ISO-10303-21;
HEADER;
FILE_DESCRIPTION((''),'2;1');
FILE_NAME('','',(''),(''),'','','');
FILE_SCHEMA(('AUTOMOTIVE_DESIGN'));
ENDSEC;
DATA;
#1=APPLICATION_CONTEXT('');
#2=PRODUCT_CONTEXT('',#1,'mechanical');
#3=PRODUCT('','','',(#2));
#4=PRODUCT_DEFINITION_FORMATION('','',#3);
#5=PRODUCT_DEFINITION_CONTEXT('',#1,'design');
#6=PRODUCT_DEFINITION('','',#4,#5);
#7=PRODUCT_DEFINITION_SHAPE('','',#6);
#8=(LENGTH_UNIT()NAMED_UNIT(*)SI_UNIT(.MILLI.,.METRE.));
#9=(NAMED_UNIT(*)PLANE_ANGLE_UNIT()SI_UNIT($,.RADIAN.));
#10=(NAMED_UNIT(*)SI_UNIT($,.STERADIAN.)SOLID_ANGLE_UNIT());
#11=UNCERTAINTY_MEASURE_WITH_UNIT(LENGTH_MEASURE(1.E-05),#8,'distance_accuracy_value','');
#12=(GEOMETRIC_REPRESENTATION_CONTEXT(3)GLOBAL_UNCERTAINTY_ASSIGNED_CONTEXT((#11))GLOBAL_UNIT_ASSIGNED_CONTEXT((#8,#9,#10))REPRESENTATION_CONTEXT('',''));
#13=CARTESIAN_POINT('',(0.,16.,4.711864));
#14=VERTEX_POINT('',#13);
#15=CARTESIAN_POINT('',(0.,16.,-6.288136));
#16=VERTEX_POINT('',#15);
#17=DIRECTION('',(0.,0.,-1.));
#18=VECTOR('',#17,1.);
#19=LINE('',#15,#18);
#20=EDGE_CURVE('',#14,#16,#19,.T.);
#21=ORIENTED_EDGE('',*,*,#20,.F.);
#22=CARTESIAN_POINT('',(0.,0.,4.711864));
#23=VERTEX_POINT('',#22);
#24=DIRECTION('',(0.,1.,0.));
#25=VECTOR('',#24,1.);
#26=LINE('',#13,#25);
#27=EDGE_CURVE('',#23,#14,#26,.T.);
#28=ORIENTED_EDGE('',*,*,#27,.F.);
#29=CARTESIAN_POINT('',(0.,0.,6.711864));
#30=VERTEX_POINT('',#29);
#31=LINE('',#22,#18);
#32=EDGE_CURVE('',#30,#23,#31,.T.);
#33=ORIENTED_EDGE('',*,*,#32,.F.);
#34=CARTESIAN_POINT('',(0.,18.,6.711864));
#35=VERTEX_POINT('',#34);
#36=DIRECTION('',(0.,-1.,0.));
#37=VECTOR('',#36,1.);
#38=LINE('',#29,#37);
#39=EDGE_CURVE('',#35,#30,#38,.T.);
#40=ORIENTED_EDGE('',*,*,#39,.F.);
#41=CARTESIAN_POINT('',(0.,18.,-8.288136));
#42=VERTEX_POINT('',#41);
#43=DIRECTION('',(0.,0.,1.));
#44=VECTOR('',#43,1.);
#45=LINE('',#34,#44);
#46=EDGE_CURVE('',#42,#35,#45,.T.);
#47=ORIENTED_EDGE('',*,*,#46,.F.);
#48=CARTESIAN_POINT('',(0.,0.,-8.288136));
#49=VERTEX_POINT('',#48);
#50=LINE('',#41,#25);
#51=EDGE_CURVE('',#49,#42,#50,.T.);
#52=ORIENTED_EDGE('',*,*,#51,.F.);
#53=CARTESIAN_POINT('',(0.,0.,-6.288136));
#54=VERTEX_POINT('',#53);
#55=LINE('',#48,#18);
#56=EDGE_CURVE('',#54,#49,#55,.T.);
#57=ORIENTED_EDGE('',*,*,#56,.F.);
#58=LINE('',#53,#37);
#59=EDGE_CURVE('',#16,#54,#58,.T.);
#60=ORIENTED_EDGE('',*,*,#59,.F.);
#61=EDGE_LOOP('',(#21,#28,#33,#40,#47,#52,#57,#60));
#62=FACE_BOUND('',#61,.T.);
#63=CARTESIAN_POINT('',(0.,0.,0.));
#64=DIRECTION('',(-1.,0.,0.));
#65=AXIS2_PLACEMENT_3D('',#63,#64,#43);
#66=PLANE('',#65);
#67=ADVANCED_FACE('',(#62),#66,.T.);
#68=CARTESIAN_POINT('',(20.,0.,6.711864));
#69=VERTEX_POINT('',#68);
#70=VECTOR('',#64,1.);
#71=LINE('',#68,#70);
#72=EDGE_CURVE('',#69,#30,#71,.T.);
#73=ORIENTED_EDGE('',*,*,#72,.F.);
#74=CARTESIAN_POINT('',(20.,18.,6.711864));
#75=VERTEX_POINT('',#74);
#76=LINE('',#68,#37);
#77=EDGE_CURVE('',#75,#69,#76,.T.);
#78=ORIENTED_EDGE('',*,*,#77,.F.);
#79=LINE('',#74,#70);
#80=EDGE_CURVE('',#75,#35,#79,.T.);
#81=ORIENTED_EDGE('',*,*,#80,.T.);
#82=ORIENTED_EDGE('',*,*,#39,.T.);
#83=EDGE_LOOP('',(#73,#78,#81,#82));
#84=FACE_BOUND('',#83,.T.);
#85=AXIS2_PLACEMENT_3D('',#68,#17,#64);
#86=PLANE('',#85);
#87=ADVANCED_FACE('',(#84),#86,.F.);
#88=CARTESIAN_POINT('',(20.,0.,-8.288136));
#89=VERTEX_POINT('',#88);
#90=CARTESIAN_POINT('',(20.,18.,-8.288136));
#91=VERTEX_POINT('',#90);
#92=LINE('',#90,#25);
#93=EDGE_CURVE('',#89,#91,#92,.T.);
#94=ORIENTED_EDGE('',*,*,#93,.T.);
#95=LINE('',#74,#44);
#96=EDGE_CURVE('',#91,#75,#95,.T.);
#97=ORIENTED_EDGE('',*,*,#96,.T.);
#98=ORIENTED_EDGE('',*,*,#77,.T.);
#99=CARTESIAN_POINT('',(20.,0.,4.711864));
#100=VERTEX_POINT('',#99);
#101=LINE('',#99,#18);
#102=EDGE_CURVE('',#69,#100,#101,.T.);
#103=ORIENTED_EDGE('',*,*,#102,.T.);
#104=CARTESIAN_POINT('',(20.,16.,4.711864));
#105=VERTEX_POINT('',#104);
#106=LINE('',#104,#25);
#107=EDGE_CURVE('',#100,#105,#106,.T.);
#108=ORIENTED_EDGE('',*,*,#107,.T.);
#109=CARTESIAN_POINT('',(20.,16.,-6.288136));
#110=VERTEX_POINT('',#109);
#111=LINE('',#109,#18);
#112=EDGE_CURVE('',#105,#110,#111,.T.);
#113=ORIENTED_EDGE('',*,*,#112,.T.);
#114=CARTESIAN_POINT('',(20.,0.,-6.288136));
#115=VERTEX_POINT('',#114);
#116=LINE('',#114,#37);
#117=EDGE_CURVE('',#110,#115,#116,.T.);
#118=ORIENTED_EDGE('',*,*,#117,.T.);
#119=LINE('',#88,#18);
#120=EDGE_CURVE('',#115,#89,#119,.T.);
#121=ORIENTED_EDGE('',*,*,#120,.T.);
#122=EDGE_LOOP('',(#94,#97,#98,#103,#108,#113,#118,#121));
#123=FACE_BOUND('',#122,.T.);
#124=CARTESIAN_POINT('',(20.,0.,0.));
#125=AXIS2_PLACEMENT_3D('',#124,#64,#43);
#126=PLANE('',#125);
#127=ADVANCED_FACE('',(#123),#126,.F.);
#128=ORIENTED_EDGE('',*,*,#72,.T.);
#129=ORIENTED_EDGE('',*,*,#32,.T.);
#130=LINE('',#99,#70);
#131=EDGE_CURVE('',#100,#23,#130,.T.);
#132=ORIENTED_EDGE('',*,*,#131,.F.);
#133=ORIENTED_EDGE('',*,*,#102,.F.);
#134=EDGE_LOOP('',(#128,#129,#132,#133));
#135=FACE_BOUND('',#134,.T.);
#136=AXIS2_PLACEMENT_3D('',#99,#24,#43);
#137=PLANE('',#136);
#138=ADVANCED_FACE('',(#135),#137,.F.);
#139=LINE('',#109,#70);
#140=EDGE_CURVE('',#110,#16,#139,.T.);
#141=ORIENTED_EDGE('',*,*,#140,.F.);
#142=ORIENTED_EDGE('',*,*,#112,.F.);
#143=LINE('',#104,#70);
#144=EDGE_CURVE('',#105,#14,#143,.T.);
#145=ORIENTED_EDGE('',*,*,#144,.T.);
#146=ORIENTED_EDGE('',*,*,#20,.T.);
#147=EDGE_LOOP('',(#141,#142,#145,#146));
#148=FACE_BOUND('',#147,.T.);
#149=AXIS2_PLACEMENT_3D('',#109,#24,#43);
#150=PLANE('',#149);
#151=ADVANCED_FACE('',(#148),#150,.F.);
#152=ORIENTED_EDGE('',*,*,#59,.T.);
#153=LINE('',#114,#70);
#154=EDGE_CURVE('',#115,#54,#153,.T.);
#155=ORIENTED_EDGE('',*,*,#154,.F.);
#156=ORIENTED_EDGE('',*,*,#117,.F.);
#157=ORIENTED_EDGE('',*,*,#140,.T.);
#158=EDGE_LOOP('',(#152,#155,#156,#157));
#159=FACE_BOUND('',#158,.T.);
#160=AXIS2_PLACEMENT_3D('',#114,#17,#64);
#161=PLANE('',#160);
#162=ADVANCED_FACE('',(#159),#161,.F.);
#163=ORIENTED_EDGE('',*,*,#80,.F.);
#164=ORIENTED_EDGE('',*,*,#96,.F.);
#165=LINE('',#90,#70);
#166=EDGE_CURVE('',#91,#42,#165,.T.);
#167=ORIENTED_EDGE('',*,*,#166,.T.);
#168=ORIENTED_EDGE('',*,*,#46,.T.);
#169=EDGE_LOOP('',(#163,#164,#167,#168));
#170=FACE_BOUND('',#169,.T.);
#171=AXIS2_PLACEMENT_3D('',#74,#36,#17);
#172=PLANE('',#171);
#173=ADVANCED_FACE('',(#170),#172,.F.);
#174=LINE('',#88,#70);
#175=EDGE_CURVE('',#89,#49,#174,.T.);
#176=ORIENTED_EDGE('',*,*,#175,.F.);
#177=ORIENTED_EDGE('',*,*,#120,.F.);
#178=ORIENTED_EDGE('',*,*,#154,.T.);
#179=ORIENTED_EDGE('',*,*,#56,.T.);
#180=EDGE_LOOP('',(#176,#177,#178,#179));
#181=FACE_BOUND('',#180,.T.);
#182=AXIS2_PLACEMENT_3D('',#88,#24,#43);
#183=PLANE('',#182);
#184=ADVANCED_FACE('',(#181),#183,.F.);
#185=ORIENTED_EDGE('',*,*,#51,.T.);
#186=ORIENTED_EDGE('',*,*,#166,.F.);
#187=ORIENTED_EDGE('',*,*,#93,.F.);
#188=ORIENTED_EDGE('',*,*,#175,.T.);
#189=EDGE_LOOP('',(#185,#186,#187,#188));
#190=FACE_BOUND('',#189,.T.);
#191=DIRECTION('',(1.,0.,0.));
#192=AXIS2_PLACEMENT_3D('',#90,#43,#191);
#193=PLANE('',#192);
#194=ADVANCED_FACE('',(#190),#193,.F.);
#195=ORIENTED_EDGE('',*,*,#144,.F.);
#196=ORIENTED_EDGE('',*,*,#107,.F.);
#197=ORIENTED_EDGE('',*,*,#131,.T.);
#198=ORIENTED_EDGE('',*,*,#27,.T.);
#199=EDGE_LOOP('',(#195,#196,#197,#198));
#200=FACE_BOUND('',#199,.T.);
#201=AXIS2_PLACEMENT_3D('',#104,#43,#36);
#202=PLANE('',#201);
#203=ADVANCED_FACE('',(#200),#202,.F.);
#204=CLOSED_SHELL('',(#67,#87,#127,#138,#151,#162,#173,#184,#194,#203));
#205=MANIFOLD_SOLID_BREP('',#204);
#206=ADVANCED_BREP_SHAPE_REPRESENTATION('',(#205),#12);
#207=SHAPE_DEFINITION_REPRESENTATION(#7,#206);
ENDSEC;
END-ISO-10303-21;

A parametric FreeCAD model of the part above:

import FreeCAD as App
import Part
import Sketcher
from FreeCAD import Vector
Q = App.Units.Quantity

doc = App.newDocument("Part")
body = doc.addObject("PartDesign::Body", "Body")

sketch1 = doc.addObject("Sketcher::SketchObject", "Sketch")
body.addObject(sketch1)
sketch1.AttachmentSupport = (doc.YZ_Plane, [""])
sketch1.MapMode = "FlatFace"
sketch1.addGeometry([
    Part.LineSegment(Vector(18, 6.7, 0), Vector(0, 6.7, 0)),
    Part.LineSegment(Vector(0, 6.7, 0), Vector(0, 4.7, 0)),
    Part.LineSegment(Vector(0, 4.7, 0), Vector(16, 4.7, 0)),
    Part.LineSegment(Vector(16, 4.7, 0), Vector(16, -6.3, 0)),
    Part.LineSegment(Vector(16, -6.3, 0), Vector(0, -6.3, 0)),
    Part.LineSegment(Vector(0, -6.3, 0), Vector(0, -8.3, 0)),
    Part.LineSegment(Vector(0, -8.3, 0), Vector(18, -8.3, 0)),
    Part.LineSegment(Vector(18, -8.3, 0), Vector(18, 6.7, 0)),
], False)
sketch1.addConstraint([
    Sketcher.Constraint("Coincident", 0, 2, 1, 1),
    Sketcher.Constraint("Coincident", 1, 2, 2, 1),
    Sketcher.Constraint("Coincident", 2, 2, 3, 1),
    Sketcher.Constraint("Coincident", 3, 2, 4, 1),
    Sketcher.Constraint("Coincident", 4, 2, 5, 1),
    Sketcher.Constraint("Coincident", 5, 2, 6, 1),
    Sketcher.Constraint("Coincident", 6, 2, 7, 1),
    Sketcher.Constraint("Coincident", 7, 2, 0, 1),
    Sketcher.Constraint("Horizontal", 0),
    Sketcher.Constraint("Vertical", 1),
    Sketcher.Constraint("Horizontal", 2),
    Sketcher.Constraint("Vertical", 3),
    Sketcher.Constraint("Horizontal", 4),
    Sketcher.Constraint("Vertical", 5),
    Sketcher.Constraint("Horizontal", 6),
    Sketcher.Constraint("Vertical", 7),
    Sketcher.Constraint("PointOnObject", 0, 2, -2),
    Sketcher.Constraint("PointOnObject", 4, 2, -2),
    Sketcher.Constraint("Equal", 1, 5),
    Sketcher.Constraint("DistanceX", 0, 2, 0, 1, Q("18 mm")),
    Sketcher.Constraint("DistanceX", 2, 1, 2, 2, Q("16 mm")),
    Sketcher.Constraint("DistanceY", 1, 2, 1, 1, Q("2 mm")),
    Sketcher.Constraint("DistanceY", 3, 2, 3, 1, Q("11 mm")),
    Sketcher.Constraint("DistanceY", -1, 1, 0, 2, Q("6.711864 mm")),
])
pad1 = doc.addObject("PartDesign::Pad", "Pad")
body.addObject(pad1)
pad1.Profile = sketch1
pad1.Length = 20

doc.recompute()
